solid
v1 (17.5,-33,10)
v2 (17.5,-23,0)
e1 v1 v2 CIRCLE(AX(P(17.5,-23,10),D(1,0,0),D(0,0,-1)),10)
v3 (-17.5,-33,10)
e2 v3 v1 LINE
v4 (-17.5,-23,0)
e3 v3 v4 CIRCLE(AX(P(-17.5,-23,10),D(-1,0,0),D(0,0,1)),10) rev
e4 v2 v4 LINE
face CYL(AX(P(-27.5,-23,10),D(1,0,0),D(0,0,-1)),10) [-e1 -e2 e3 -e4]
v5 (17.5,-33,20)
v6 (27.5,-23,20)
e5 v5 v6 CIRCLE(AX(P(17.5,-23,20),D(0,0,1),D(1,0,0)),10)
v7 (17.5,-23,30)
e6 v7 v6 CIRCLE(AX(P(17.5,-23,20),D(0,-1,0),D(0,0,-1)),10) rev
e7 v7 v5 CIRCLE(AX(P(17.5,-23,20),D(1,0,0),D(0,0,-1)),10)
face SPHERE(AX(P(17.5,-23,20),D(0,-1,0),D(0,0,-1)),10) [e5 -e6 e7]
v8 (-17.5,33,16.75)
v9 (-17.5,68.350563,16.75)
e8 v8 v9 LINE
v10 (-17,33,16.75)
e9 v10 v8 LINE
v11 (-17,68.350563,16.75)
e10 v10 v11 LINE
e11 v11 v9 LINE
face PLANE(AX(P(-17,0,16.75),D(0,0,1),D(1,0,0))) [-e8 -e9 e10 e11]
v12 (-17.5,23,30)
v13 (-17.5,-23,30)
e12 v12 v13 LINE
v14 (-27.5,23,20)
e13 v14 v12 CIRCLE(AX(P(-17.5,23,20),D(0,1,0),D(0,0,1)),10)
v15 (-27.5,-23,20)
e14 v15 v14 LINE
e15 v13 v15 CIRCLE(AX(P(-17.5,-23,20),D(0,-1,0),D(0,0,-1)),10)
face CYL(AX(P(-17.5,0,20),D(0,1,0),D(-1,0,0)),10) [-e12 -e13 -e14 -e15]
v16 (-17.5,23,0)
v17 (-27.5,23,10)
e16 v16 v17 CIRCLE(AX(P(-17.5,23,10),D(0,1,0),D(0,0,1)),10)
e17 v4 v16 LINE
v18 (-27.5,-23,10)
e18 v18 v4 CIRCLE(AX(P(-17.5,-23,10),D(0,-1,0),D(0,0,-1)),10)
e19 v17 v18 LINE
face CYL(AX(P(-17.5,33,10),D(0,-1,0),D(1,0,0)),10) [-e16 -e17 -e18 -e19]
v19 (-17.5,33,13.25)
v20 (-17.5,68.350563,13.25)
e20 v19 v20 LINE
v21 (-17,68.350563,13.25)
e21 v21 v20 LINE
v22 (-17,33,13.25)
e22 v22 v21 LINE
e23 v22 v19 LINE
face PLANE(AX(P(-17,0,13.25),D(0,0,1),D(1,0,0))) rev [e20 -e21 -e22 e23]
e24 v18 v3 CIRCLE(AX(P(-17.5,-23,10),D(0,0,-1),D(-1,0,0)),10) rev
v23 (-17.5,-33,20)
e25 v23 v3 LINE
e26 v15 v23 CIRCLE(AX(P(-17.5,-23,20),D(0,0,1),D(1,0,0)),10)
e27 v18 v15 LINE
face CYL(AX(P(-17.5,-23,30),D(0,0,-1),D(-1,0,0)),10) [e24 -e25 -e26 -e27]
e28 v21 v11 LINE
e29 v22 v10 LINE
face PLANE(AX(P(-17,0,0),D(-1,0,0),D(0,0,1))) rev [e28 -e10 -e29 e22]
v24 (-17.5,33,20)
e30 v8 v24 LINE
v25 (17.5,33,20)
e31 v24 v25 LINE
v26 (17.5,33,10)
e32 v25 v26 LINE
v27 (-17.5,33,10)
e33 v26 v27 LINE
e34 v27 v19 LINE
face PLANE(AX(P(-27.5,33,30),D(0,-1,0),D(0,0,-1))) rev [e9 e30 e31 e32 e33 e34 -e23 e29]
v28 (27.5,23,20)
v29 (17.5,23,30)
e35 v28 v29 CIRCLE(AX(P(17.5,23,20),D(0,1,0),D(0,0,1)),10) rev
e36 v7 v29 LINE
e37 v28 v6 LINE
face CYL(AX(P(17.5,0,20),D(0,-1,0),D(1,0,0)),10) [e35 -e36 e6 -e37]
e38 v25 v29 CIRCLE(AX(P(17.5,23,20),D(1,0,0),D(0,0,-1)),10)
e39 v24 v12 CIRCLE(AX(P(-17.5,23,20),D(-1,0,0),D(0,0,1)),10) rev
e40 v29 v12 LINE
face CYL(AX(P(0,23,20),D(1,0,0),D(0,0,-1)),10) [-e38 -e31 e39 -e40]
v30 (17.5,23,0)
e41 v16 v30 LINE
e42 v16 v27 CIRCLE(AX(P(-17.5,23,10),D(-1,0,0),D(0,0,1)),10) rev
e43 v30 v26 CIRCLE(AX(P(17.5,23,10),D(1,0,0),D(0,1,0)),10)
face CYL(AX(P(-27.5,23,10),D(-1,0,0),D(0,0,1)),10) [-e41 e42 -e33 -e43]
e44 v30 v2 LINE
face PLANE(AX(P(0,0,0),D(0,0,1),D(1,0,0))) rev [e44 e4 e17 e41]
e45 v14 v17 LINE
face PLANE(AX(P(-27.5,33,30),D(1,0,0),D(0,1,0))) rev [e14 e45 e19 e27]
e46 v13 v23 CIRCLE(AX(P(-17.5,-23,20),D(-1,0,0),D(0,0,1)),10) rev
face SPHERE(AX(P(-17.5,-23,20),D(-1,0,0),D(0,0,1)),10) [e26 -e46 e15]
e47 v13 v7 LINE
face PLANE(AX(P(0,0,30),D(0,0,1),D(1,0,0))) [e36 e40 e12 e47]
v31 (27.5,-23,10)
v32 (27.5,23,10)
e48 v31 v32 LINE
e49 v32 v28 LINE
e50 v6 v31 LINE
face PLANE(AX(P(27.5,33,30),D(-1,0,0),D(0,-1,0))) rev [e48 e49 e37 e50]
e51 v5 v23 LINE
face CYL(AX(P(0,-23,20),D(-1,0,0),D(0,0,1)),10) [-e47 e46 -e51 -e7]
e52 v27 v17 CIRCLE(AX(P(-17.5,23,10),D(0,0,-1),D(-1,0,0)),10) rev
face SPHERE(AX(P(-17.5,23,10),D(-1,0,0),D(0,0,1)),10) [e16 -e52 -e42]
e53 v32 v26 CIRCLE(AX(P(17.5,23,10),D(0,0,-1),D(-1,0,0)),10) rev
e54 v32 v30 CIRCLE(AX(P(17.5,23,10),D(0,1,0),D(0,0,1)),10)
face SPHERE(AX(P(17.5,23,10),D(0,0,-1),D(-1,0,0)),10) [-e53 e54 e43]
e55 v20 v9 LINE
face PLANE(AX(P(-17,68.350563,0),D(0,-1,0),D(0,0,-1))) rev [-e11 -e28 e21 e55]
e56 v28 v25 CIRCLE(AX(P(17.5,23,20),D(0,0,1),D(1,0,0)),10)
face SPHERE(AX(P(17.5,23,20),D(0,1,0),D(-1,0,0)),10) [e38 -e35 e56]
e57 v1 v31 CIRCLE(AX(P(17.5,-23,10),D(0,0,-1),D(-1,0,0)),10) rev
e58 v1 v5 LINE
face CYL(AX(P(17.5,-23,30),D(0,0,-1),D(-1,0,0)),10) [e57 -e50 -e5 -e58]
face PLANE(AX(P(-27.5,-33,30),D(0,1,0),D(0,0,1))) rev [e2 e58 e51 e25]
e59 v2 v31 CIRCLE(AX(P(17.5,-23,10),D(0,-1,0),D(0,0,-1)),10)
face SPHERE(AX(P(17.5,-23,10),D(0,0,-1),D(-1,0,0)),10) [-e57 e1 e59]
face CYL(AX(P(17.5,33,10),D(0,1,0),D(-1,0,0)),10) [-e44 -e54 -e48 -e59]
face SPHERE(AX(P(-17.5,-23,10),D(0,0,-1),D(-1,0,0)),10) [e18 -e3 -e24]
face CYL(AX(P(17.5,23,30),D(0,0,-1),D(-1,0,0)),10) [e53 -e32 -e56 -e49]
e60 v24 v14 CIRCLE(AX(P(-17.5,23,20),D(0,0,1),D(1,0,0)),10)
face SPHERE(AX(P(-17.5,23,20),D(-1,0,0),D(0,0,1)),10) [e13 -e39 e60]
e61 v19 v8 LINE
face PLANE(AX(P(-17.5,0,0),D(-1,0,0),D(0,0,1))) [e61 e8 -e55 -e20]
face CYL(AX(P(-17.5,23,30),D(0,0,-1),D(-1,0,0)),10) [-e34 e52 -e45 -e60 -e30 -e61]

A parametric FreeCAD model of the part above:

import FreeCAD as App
import Part
import Sketcher

V = App.Vector
Q = App.Units.Quantity

doc = App.newDocument("Part")
body = doc.addObject("PartDesign::Body", "Body")

# Sketch on XY plane
sketch1 = body.newObject("Sketcher::SketchObject", "Sketch")
sketch1.AttachmentSupport = (doc.getObject("XY_Plane"), [""])
sketch1.MapMode = "FlatFace"
sketch1.addGeometry([
    Part.LineSegment(V(-28, 33, 0), V(-28, -33, 0)),
    Part.LineSegment(V(-28, -33, 0), V(28, -33, 0)),
    Part.LineSegment(V(28, -33, 0), V(28, 33, 0)),
    Part.LineSegment(V(28, 33, 0), V(-28, 33, 0)),
], False)
sketch1.addConstraint([
    Sketcher.Constraint("Coincident", 0, 2, 1, 1),
    Sketcher.Constraint("Coincident", 1, 2, 2, 1),
    Sketcher.Constraint("Coincident", 2, 2, 3, 1),
    Sketcher.Constraint("Coincident", 3, 2, 0, 1),
    Sketcher.Constraint("Vertical", 0),
    Sketcher.Constraint("Horizontal", 1),
    Sketcher.Constraint("Vertical", 2),
    Sketcher.Constraint("Horizontal", 3),
    Sketcher.Constraint("Symmetric", 0, 2, 2, 2, -1, 1),
    Sketcher.Constraint("DistanceX", 1, 1, 1, 2, Q("55 mm")),
    Sketcher.Constraint("DistanceY", 0, 2, 0, 1, Q("66 mm")),
])
pad1 = body.newObject("PartDesign::Pad", "Pad")
pad1.Profile = sketch1
pad1.Length = 30
doc.recompute()

fillet = body.newObject("PartDesign::Fillet", "Fillet")
fillet.Base = (pad1, ["Edge1"])
fillet.UseAllEdges = True
fillet.Radius = 10

# Sketch on YZ plane
sketch2 = body.newObject("Sketcher::SketchObject", "Sketch001")
sketch2.AttachmentSupport = (doc.getObject("YZ_Plane"), [""])
sketch2.MapMode = "FlatFace"
sketch2.AttachmentOffset = App.Placement(V(0, 0, -17.5), App.Rotation())
sketch2.addGeometry([
    Part.LineSegment(V(68.4, 13.2, 0), V(33, 13.2, 0)),
    Part.LineSegment(V(33, 13.2, 0), V(33, 13.8, 0)),
    Part.LineSegment(V(33, 13.8, 0), V(68.4, 13.8, 0)),
    Part.LineSegment(V(68.4, 13.8, 0), V(68.4, 13.2, 0)),
], False)
sketch2.addConstraint([
    Sketcher.Constraint("Coincident", 0, 2, 1, 1),
    Sketcher.Constraint("Coincident", 1, 2, 2, 1),
    Sketcher.Constraint("Coincident", 2, 2, 3, 1),
    Sketcher.Constraint("Coincident", 3, 2, 0, 1),
    Sketcher.Constraint("Horizontal", 0),
    Sketcher.Constraint("Vertical", 1),
    Sketcher.Constraint("Horizontal", 2),
    Sketcher.Constraint("Vertical", 3),
    Sketcher.Constraint("DistanceY", 1, 1, 1, 2, Q("0.5 mm")),
    Sketcher.Constraint("DistanceX", -1, 1, 0, 2, Q("33 mm")),
    Sketcher.Constraint("DistanceY", -1, 1, 0, 2, Q("13.25 mm")),
    Sketcher.Constraint("DistanceX", 0, 2, 0, 1, Q("35.350563 mm")),
])
pad2 = body.newObject("PartDesign::Pad", "Pad001")
pad2.Profile = sketch2
pad2.Length = 0.5

# Sketch on YZ plane
sketch3 = body.newObject("Sketcher::SketchObject", "Sketch002")
sketch3.AttachmentSupport = (doc.getObject("YZ_Plane"), [""])
sketch3.MapMode = "FlatFace"
sketch3.AttachmentOffset = App.Placement(V(0, 0, -17.5), App.Rotation())
sketch3.addGeometry([
    Part.LineSegment(V(68.4, 13.8, 0), V(33, 13.8, 0)),
    Part.LineSegment(V(33, 13.8, 0), V(33, 14.2, 0)),
    Part.LineSegment(V(33, 14.2, 0), V(68.4, 14.2, 0)),
    Part.LineSegment(V(68.4, 14.2, 0), V(68.4, 13.8, 0)),
], False)
sketch3.addConstraint([
    Sketcher.Constraint("Coincident", 0, 2, 1, 1),
    Sketcher.Constraint("Coincident", 1, 2, 2, 1),
    Sketcher.Constraint("Coincident", 2, 2, 3, 1),
    Sketcher.Constraint("Coincident", 3, 2, 0, 1),
    Sketcher.Constraint("Horizontal", 0),
    Sketcher.Constraint("Vertical", 1),
    Sketcher.Constraint("Horizontal", 2),
    Sketcher.Constraint("Vertical", 3),
    Sketcher.Constraint("DistanceY", 1, 1, 1, 2, Q("0.5 mm")),
    Sketcher.Constraint("DistanceX", -1, 1, 0, 2, Q("33 mm")),
    Sketcher.Constraint("DistanceY", -1, 1, 0, 2, Q("13.75 mm")),
    Sketcher.Constraint("DistanceX", 0, 2, 0, 1, Q("35.350563 mm")),
])
pad3 = body.newObject("PartDesign::Pad", "Pad002")
pad3.Profile = sketch3
pad3.Length = 0.5

# Sketch on YZ plane
sketch4 = body.newObject("Sketcher::SketchObject", "Sketch003")
sketch4.AttachmentSupport = (doc.getObject("YZ_Plane"), [""])
sketch4.MapMode = "FlatFace"
sketch4.AttachmentOffset = App.Placement(V(0, 0, -17.5), App.Rotation())
sketch4.addGeometry([
    Part.LineSegment(V(68.4, 14.8, 0), V(33, 14.8, 0)),
    Part.LineSegment(V(33, 14.8, 0), V(33, 15.2, 0)),
    Part.LineSegment(V(33, 15.2, 0), V(68.4, 15.2, 0)),
    Part.LineSegment(V(68.4, 15.2, 0), V(68.4, 14.8, 0)),
], False)
sketch4.addConstraint([
    Sketcher.Constraint("Coincident", 0, 2, 1, 1),
    Sketcher.Constraint("Coincident", 1, 2, 2, 1),
    Sketcher.Constraint("Coincident", 2, 2, 3, 1),
    Sketcher.Constraint("Coincident", 3, 2, 0, 1),
    Sketcher.Constraint("Horizontal", 0),
    Sketcher.Constraint("Vertical", 1),
    Sketcher.Constraint("Horizontal", 2),
    Sketcher.Constraint("Vertical", 3),
    Sketcher.Constraint("DistanceY", 1, 1, 1, 2, Q("0.5 mm")),
    Sketcher.Constraint("DistanceX", -1, 1, 0, 2, Q("33 mm")),
    Sketcher.Constraint("DistanceY", -1, 1, 0, 2, Q("14.75 mm")),
    Sketcher.Constraint("DistanceX", 0, 2, 0, 1, Q("35.350563 mm")),
])
pad4 = body.newObject("PartDesign::Pad", "Pad003")
pad4.Profile = sketch4
pad4.Length = 0.5

# Sketch on YZ plane
sketch5 = body.newObject("Sketcher::SketchObject", "Sketch004")
sketch5.AttachmentSupport = (doc.getObject("YZ_Plane"), [""])
sketch5.MapMode = "FlatFace"
sketch5.AttachmentOffset = App.Placement(V(0, 0, -17.5), App.Rotation())
sketch5.addGeometry([
    Part.LineSegment(V(68.4, 14.2, 0), V(33, 14.2, 0)),
    Part.LineSegment(V(33, 14.2, 0), V(33, 14.8, 0)),
    Part.LineSegment(V(33, 14.8, 0), V(68.4, 14.8, 0)),
    Part.LineSegment(V(68.4, 14.8, 0), V(68.4, 14.2, 0)),
], False)
sketch5.addConstraint([
    Sketcher.Constraint("Coincident", 0, 2, 1, 1),
    Sketcher.Constraint("Coincident", 1, 2, 2, 1),
    Sketcher.Constraint("Coincident", 2, 2, 3, 1),
    Sketcher.Constraint("Coincident", 3, 2, 0, 1),
    Sketcher.Constraint("Horizontal", 0),
    Sketcher.Constraint("Vertical", 1),
    Sketcher.Constraint("Horizontal", 2),
    Sketcher.Constraint("Vertical", 3),
    Sketcher.Constraint("DistanceY", 1, 1, 1, 2, Q("0.5 mm")),
    Sketcher.Constraint("DistanceX", -1, 1, 0, 2, Q("33 mm")),
    Sketcher.Constraint("DistanceY", -1, 1, 0, 2, Q("14.25 mm")),
    Sketcher.Constraint("DistanceX", 0, 2, 0, 1, Q("35.350563 mm")),
])
pad5 = body.newObject("PartDesign::Pad", "Pad004")
pad5.Profile = sketch5
pad5.Length = 0.5

# Sketch on YZ plane
sketch6 = body.newObject("Sketcher::SketchObject", "Sketch005")
sketch6.AttachmentSupport = (doc.getObject("YZ_Plane"), [""])
sketch6.MapMode = "FlatFace"
sketch6.AttachmentOffset = App.Placement(V(0, 0, -17.5), App.Rotation())
sketch6.addGeometry([
    Part.LineSegment(V(68.4, 15.2, 0), V(33, 15.2, 0)),
    Part.LineSegment(V(33, 15.2, 0), V(33, 16.8, 0)),
    Part.LineSegment(V(33, 16.8, 0), V(68.4, 16.8, 0)),
    Part.LineSegment(V(68.4, 16.8, 0), V(68.4, 15.2, 0)),
], False)
sketch6.addConstraint([
    Sketcher.Constraint("Coincident", 0, 2, 1, 1),
    Sketcher.Constraint("Coincident", 1, 2, 2, 1),
    Sketcher.Constraint("Coincident", 2, 2, 3, 1),
    Sketcher.Constraint("Coincident", 3, 2, 0, 1),
    Sketcher.Constraint("Horizontal", 0),
    Sketcher.Constraint("Vertical", 1),
    Sketcher.Constraint("Horizontal", 2),
    Sketcher.Constraint("Vertical", 3),
    Sketcher.Constraint("DistanceY", 1, 1, 1, 2, Q("1.5 mm")),
    Sketcher.Constraint("DistanceX", -1, 1, 0, 2, Q("33 mm")),
    Sketcher.Constraint("DistanceY", -1, 1, 0, 2, Q("15.25 mm")),
    Sketcher.Constraint("DistanceX", 0, 2, 0, 1, Q("35.350563 mm")),
])
pad6 = body.newObject("PartDesign::Pad", "Pad005")
pad6.Profile = sketch6
pad6.Length = 0.5

doc.recompute()
